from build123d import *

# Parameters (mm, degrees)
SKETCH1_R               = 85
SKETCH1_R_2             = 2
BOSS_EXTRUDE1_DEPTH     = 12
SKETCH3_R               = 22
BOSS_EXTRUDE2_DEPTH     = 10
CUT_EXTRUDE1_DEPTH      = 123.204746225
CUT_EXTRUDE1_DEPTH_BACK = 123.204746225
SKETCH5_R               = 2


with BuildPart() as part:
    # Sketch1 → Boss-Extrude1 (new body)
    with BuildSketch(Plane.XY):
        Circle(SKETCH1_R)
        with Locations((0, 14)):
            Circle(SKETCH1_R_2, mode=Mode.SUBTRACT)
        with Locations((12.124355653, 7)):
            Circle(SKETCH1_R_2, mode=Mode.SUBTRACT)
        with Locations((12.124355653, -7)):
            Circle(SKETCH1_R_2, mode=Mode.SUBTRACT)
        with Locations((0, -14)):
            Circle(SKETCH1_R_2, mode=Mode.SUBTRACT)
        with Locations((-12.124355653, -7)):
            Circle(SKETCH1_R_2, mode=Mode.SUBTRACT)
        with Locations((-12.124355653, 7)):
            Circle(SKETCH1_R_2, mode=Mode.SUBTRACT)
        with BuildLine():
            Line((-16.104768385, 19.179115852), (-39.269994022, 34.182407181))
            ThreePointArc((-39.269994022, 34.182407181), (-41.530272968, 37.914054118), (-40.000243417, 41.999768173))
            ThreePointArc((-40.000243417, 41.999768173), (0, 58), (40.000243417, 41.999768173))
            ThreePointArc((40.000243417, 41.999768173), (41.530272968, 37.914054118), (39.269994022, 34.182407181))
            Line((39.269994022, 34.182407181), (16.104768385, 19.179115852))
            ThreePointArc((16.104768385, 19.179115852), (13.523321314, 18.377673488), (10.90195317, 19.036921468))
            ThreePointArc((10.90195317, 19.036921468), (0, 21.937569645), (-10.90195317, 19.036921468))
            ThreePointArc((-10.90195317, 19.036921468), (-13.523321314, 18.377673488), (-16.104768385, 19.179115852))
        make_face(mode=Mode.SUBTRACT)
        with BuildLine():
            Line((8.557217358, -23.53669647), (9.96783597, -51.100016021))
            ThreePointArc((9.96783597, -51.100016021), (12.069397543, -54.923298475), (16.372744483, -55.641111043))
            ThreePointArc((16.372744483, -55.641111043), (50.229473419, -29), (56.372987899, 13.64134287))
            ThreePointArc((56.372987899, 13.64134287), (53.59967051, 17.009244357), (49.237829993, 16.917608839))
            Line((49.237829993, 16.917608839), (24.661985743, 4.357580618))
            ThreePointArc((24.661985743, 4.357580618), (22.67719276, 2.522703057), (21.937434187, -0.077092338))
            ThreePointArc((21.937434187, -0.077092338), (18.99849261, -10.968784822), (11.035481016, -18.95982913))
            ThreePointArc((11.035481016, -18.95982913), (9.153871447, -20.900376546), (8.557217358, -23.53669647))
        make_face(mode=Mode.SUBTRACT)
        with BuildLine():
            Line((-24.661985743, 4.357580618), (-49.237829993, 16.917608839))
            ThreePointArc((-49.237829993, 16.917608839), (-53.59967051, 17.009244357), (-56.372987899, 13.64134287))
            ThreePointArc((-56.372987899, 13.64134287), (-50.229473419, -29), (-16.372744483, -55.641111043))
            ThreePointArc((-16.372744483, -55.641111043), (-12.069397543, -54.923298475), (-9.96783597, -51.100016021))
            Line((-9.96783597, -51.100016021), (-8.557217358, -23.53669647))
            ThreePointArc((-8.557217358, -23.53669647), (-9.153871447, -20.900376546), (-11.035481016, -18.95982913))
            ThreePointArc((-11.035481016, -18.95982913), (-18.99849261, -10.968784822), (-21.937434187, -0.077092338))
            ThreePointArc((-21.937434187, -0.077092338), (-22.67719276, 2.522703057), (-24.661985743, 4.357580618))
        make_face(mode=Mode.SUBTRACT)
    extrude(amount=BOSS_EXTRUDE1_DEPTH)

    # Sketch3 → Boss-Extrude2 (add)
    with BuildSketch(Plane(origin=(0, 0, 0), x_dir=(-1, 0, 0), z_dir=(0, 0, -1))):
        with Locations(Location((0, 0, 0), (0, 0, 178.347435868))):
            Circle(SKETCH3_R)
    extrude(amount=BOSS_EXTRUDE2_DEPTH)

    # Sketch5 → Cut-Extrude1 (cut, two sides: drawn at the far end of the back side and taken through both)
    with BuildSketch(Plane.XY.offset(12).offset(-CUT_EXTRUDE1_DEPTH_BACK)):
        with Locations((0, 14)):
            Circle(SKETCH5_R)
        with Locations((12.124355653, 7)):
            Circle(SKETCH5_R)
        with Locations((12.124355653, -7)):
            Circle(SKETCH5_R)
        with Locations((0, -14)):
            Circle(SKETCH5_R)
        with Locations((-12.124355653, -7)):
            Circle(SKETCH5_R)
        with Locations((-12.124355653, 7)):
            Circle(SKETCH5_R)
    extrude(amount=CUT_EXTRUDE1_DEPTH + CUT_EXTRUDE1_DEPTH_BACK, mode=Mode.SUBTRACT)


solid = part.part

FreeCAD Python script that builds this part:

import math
import FreeCAD as App
import Part
import Sketcher
Q = App.Units.Quantity

doc = App.newDocument("Part")
body = doc.addObject("PartDesign::Body", "Body")

sketch1 = body.newObject("Sketcher::SketchObject", "Sketch")
sketch1.AttachmentSupport = (doc.getObject("XY_Plane"), [""])
sketch1.MapMode = "FlatFace"
sketch1.addGeometry([
    Part.Circle(App.Vector(0, 0, 0), App.Vector(0, 0, 1), 85),
    Part.LineSegment(App.Vector(-49.23783, 16.917609, 0), App.Vector(-24.661986, 4.357581, 0)),
    Part.ArcOfCircle(Part.Circle(App.Vector(-26.937403, -0.094663, 0), App.Vector(0, 0, 1), 5), math.radians(0.201347), math.radians(62.929692)),
    Part.ArcOfCircle(Part.Circle(App.Vector(0, 0, 0), App.Vector(0, 0, 1), 21.93757), math.radians(-179.798653), math.radians(-120.201347)),
    Part.ArcOfCircle(Part.Circle(App.Vector(-13.550682, -23.281144, 0), App.Vector(0, 0, 1), 5), math.radians(-2.929692), math.radians(59.798652)),
    Part.LineSegment(App.Vector(-8.557217, -23.536696, 0), App.Vector(-9.967836, -51.100016, 0)),
    Part.ArcOfCircle(Part.Circle(App.Vector(-14.961301, -50.844464, 0), App.Vector(0, 0, 1), 5), math.radians(-106.396849), math.radians(-2.929692)),
    Part.ArcOfCircle(Part.Circle(App.Vector(0, 0, 0), App.Vector(0, 0, 1), 58), math.radians(166.396849), math.radians(253.603151)),
    Part.ArcOfCircle(Part.Circle(App.Vector(-51.513248, 12.465365, 0), App.Vector(0, 0, 1), 5), math.radians(62.929692), math.radians(166.396849)),
    Part.Circle(App.Vector(-12.124356, -7, 0), App.Vector(0, 0, 1), 2),
    Part.Circle(App.Vector(0, -14, 0), App.Vector(0, 0, 1), 2),
    Part.Circle(App.Vector(12.124356, -7, 0), App.Vector(0, 0, 1), 2),
    Part.LineSegment(App.Vector(9.967836, -51.100016, 0), App.Vector(8.557217, -23.536696, 0)),
    Part.ArcOfCircle(Part.Circle(App.Vector(13.550682, -23.281144, 0), App.Vector(0, 0, 1), 5), math.radians(120.201348), math.radians(182.929692)),
    Part.ArcOfCircle(Part.Circle(App.Vector(0, 0, 0), App.Vector(0, 0, 1), 21.93757), math.radians(-59.798653), math.radians(-0.201347)),
    Part.ArcOfCircle(Part.Circle(App.Vector(26.937403, -0.094663, 0), App.Vector(0, 0, 1), 5), math.radians(117.070308), math.radians(179.798653)),
    Part.LineSegment(App.Vector(24.661986, 4.357581, 0), App.Vector(49.23783, 16.917609, 0)),
    Part.ArcOfCircle(Part.Circle(App.Vector(51.513248, 12.465365, 0), App.Vector(0, 0, 1), 5), math.radians(13.603151), math.radians(117.070308)),
    Part.ArcOfCircle(Part.Circle(App.Vector(0, 0, 0), App.Vector(0, 0, 1), 58), math.radians(-73.603151), math.radians(13.603151)),
    Part.ArcOfCircle(Part.Circle(App.Vector(14.961301, -50.844464, 0), App.Vector(0, 0, 1), 5), math.radians(-177.070308), math.radians(-73.603151)),
    Part.Circle(App.Vector(-12.124356, 7, 0), App.Vector(0, 0, 1), 2),
    Part.Circle(App.Vector(12.124356, 7, 0), App.Vector(0, 0, 1), 2),
    Part.Circle(App.Vector(0, 14, 0), App.Vector(0, 0, 1), 2),
    Part.ArcOfCircle(Part.Circle(App.Vector(-13.386721, 23.375807, 0), App.Vector(0, 0, 1), 5), math.radians(-122.929692), math.radians(-60.201347)),
    Part.LineSegment(App.Vector(-16.104768, 19.179116, 0), App.Vector(-39.269994, 34.182407, 0)),
    Part.ArcOfCircle(Part.Circle(App.Vector(-36.551947, 38.379099, 0), App.Vector(0, 0, 1), 5), math.radians(133.603151), math.radians(237.070308)),
    Part.ArcOfCircle(Part.Circle(App.Vector(0, 0, 0), App.Vector(0, 0, 1), 58), math.radians(46.396849), math.radians(133.603151)),
    Part.ArcOfCircle(Part.Circle(App.Vector(36.551947, 38.379099, 0), App.Vector(0, 0, 1), 5), math.radians(-57.070308), math.radians(46.396849)),
    Part.LineSegment(App.Vector(39.269994, 34.182407, 0), App.Vector(16.104768, 19.179116, 0)),
    Part.ArcOfCircle(Part.Circle(App.Vector(13.386721, 23.375807, 0), App.Vector(0, 0, 1), 5), math.radians(-119.798653), math.radians(-57.070308)),
    Part.ArcOfCircle(Part.Circle(App.Vector(0, 0, 0), App.Vector(0, 0, 1), 21.93757), math.radians(60.201347), math.radians(119.798653)),
], False)
sketch1.addConstraint([
    Sketcher.Constraint("Tangent", 1, 2, 2, 2),
    Sketcher.Constraint("Tangent", 2, 1, 3, 1),
    Sketcher.Constraint("Tangent", 3, 2, 4, 2),
    Sketcher.Constraint("Tangent", 4, 1, 5, 1),
    Sketcher.Constraint("Tangent", 5, 2, 6, 2),
    Sketcher.Constraint("Tangent", 6, 1, 7, 2),
    Sketcher.Constraint("Tangent", 7, 1, 8, 2),
    Sketcher.Constraint("Tangent", 8, 1, 1, 1),
    Sketcher.Constraint("Tangent", 12, 2, 13, 2),
    Sketcher.Constraint("Tangent", 13, 1, 14, 1),
    Sketcher.Constraint("Tangent", 14, 2, 15, 2),
    Sketcher.Constraint("Tangent", 15, 1, 16, 1),
    Sketcher.Constraint("Tangent", 16, 2, 17, 2),
    Sketcher.Constraint("Tangent", 17, 1, 18, 2),
    Sketcher.Constraint("Tangent", 18, 1, 19, 2),
    Sketcher.Constraint("Tangent", 19, 1, 12, 1),
    Sketcher.Constraint("Tangent", 23, 1, 24, 1),
    Sketcher.Constraint("Tangent", 24, 2, 25, 2),
    Sketcher.Constraint("Tangent", 25, 1, 26, 2),
    Sketcher.Constraint("Tangent", 26, 1, 27, 2),
    Sketcher.Constraint("Tangent", 27, 1, 28, 1),
    Sketcher.Constraint("Tangent", 28, 2, 29, 2),
    Sketcher.Constraint("Tangent", 29, 1, 30, 1),
    Sketcher.Constraint("Tangent", 30, 2, 23, 2),
    Sketcher.Constraint("Coincident", 0, 3, -1, 1),
    Sketcher.Constraint("Coincident", 3, 3, -1, 1),
    Sketcher.Constraint("Coincident", 7, 3, -1, 1),
    Sketcher.Constraint("Coincident", 14, 3, -1, 1),
    Sketcher.Constraint("Coincident", 18, 3, -1, 1),
    Sketcher.Constraint("Coincident", 26, 3, -1, 1),
    Sketcher.Constraint("Coincident", 30, 3, -1, 1),
    Sketcher.Constraint("Equal", 2, 4),
    Sketcher.Constraint("Equal", 4, 6),
    Sketcher.Constraint("Equal", 6, 8),
    Sketcher.Constraint("Equal", 9, 10),
    Sketcher.Constraint("Equal", 10, 11),
    Sketcher.Constraint("Equal", 8, 13),
    Sketcher.Constraint("Equal", 3, 14),
    Sketcher.Constraint("Equal", 13, 15),
    Sketcher.Constraint("Equal", 15, 17),
    Sketcher.Constraint("Equal", 7, 18),
    Sketcher.Constraint("Equal", 17, 19),
    Sketcher.Constraint("Equal", 11, 20),
    Sketcher.Constraint("Equal", 20, 21),
    Sketcher.Constraint("Equal", 21, 22),
    Sketcher.Constraint("Equal", 19, 23),
    Sketcher.Constraint("Equal", 23, 25),
    Sketcher.Constraint("Equal", 18, 26),
    Sketcher.Constraint("Equal", 25, 27),
    Sketcher.Constraint("Equal", 27, 29),
    Sketcher.Constraint("Equal", 14, 30),
    Sketcher.Constraint("Symmetric", 11, 3, 20, 3, -1, 1),
    Sketcher.Constraint("Symmetric", 9, 3, 21, 3, -1, 1),
    Sketcher.Constraint("Symmetric", 10, 3, 22, 3, -1, 1),
    Sketcher.Constraint("Symmetric", 9, 3, 11, 3, -2),
    Sketcher.Constraint("Symmetric", 4, 1, 12, 2, -2),
    Sketcher.Constraint("Symmetric", 1, 2, 15, 1, -2),
    Sketcher.Constraint("Symmetric", 24, 2, 27, 1, -2),
    Sketcher.Constraint("PointOnObject", 10, 3, -2),
    Sketcher.Constraint("Equal", 1, 5),
    Sketcher.Constraint("Equal", 16, 24),
    Sketcher.Constraint("Diameter", 0, Q("170 mm")),
    Sketcher.Constraint("Diameter", 9, Q("4 mm")),
    Sketcher.Constraint("Radius", 2, Q("5 mm")),
    Sketcher.Constraint("Radius", 7, Q("58 mm")),
    Sketcher.Constraint("DistanceY", 9, 3, -1, 1, Q("7 mm")),
    Sketcher.Constraint("DistanceY", 10, 3, -1, 1, Q("14 mm")),
    Sketcher.Constraint("Radius", 3, Q("21.93757 mm")),
    Sketcher.Constraint("DistanceX", 6, 3, -1, 1, Q("14.961301 mm")),
    Sketcher.Constraint("DistanceY", -1, 1, 25, 3, Q("38.379099 mm")),
    Sketcher.Constraint("DistanceY", 6, 3, 2, 3, Q("50.7498 mm")),
    Sketcher.Constraint("DistanceX", 8, 3, 25, 3, Q("14.961301 mm")),
    Sketcher.Constraint("DistanceX", 9, 3, 11, 3, Q("24.248711 mm")),
])
pad1 = body.newObject("PartDesign::Pad", "Pad")
pad1.Profile = sketch1
pad1.Length = 12

sketch2 = body.newObject("Sketcher::SketchObject", "Sketch001")
sketch2.AttachmentSupport = (doc.getObject("XY_Plane"), [""])
sketch2.MapMode = "FlatFace"
sketch2.addGeometry(Part.Circle(App.Vector(0, 0, 0), App.Vector(0, 0, 1), 22), False)
sketch2.addConstraint([
    Sketcher.Constraint("Coincident", 0, 3, -1, 1),
    Sketcher.Constraint("Diameter", 0, Q("44 mm")),
])
pad2 = body.newObject("PartDesign::Pad", "Pad001")
pad2.Profile = sketch2
pad2.Length = 10
pad2.Reversed = True

sketch3 = body.newObject("Sketcher::SketchObject", "Sketch002")
sketch3.AttachmentSupport = (doc.getObject("XY_Plane"), [""])
sketch3.MapMode = "FlatFace"
sketch3.AttachmentOffset = App.Placement(App.Vector(0, 0, 12), App.Rotation())
sketch3.addGeometry([
    Part.Circle(App.Vector(0, 14, 0), App.Vector(0, 0, 1), 2),
    Part.Circle(App.Vector(12.124356, 7, 0), App.Vector(0, 0, 1), 2),
    Part.Circle(App.Vector(12.124356, -7, 0), App.Vector(0, 0, 1), 2),
    Part.Circle(App.Vector(0, -14, 0), App.Vector(0, 0, 1), 2),
    Part.Circle(App.Vector(-12.124356, -7, 0), App.Vector(0, 0, 1), 2),
    Part.Circle(App.Vector(-12.124356, 7, 0), App.Vector(0, 0, 1), 2),
], False)
sketch3.addConstraint([
    Sketcher.Constraint("Equal", 0, 1),
    Sketcher.Constraint("Equal", 1, 2),
    Sketcher.Constraint("Equal", 2, 3),
    Sketcher.Constraint("Equal", 3, 4),
    Sketcher.Constraint("Equal", 4, 5),
    Sketcher.Constraint("Symmetric", 0, 3, 3, 3, -1, 1),
    Sketcher.Constraint("Symmetric", 1, 3, 4, 3, -1, 1),
    Sketcher.Constraint("Symmetric", 2, 3, 5, 3, -1, 1),
    Sketcher.Constraint("Symmetric", 2, 3, 4, 3, -2),
    Sketcher.Constraint("PointOnObject", 0, 3, -2),
    Sketcher.Constraint("Diameter", 0, Q("4 mm")),
    Sketcher.Constraint("DistanceY", -1, 1, 0, 3, Q("14 mm")),
    Sketcher.Constraint("DistanceY", -1, 1, 1, 3, Q("7 mm")),
    Sketcher.Constraint("DistanceX", 4, 3, 2, 3, Q("24.248711 mm")),
])
pocket1 = body.newObject("PartDesign::Pocket", "Pocket")
pocket1.Profile = sketch3
pocket1.Type = "ThroughAll"
pocket1.Midplane = True

doc.recompute()
